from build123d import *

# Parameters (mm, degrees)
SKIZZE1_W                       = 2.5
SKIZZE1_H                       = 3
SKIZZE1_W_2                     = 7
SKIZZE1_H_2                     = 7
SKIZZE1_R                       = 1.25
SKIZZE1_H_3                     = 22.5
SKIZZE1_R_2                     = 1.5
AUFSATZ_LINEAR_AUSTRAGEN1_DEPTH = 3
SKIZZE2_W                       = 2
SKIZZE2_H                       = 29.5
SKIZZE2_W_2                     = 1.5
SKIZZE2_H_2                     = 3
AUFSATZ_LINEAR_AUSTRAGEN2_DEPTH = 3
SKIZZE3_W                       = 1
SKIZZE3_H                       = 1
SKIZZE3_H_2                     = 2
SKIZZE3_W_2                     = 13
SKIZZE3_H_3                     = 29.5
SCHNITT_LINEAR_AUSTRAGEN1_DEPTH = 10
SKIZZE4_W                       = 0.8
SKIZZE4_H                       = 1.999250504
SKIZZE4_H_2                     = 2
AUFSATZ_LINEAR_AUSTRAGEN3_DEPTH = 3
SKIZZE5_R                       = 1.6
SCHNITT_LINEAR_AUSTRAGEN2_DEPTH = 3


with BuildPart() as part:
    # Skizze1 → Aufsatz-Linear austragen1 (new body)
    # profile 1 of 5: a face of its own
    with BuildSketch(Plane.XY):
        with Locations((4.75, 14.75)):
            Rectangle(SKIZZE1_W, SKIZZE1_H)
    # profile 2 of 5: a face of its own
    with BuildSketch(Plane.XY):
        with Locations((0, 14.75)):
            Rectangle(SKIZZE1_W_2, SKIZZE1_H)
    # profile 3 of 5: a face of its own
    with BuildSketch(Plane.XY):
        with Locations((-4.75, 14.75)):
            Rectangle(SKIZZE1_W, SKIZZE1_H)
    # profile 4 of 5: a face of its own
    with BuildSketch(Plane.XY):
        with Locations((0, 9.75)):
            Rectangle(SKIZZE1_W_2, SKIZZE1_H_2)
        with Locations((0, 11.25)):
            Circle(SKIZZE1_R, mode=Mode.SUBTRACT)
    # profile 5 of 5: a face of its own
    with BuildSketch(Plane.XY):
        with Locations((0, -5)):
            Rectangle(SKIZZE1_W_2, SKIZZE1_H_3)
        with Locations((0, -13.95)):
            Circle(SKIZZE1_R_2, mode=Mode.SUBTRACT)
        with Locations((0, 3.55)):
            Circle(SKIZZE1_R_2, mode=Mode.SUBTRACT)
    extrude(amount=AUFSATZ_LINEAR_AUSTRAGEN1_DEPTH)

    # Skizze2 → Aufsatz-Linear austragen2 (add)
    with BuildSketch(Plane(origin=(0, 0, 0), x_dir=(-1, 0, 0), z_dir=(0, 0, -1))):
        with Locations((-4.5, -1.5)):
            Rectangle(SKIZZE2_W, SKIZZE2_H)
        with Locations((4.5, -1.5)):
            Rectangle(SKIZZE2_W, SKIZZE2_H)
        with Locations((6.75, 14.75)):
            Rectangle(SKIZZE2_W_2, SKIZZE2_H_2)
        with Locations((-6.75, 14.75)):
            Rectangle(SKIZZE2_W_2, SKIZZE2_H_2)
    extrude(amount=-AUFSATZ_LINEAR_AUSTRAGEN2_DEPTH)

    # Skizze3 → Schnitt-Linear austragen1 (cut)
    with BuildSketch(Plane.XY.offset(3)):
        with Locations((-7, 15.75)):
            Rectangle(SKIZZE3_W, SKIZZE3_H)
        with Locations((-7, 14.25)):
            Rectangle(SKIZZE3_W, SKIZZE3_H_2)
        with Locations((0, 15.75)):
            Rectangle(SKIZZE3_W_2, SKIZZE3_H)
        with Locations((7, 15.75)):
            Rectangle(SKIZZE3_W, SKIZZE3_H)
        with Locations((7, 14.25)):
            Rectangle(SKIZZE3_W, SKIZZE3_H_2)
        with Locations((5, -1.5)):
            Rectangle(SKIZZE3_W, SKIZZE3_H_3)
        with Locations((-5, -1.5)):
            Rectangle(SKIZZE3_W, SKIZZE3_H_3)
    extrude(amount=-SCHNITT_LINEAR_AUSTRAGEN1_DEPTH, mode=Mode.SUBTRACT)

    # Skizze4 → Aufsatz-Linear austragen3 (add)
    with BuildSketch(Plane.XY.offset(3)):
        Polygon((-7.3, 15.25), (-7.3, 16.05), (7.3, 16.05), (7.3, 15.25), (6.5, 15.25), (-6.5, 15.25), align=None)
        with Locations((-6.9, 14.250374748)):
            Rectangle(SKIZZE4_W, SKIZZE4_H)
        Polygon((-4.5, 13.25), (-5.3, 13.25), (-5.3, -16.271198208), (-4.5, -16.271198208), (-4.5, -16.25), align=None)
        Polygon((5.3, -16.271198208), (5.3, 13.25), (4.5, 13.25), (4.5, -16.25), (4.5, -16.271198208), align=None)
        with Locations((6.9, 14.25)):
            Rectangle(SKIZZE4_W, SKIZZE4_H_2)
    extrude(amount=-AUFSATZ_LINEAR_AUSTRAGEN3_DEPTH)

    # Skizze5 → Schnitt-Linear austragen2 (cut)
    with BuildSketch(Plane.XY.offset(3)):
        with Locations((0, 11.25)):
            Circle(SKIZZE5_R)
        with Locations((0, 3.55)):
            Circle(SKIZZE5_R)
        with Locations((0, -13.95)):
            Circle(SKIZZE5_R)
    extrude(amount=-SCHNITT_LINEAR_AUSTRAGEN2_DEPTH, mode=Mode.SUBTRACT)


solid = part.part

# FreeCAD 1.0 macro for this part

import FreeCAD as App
import Part
import Sketcher

V = App.Vector
Q = App.Units.Quantity


def add_polygon(sketch, points):
    """Adds a closed chain of lines whose ends are joined by coincident constraints."""
    first, n = sketch.GeometryCount, len(points)
    for a, b in zip(points, points[1:] + points[:1]):
        sketch.addGeometry(Part.LineSegment(App.Vector(*a, 0), App.Vector(*b, 0)), False)
    for i in range(n):
        sketch.addConstraint(Sketcher.Constraint("Coincident", first + i, 2, first + (i + 1) % n, 1))

doc = App.newDocument("Part")
params = doc.addObject("Spreadsheet::Sheet", "Params")
for row, (alias, value) in enumerate([
    ("sketch1_diameter", "3 mm"),
    ("sketch1_diameter2", "2.5 mm"),
    ("sketch1_width", "12 mm"),
    ("sketch1_width2", "7 mm"),
    ("sketch1_height", "3 mm"),
    ("pad1_length", "3 mm"),
    ("sketch2_width", "2 mm"),
    ("sketch2_height", "3 mm"),
    ("sketch2_width2", "1.5 mm"),
    ("sketch2_height2", "29.5 mm"),
    ("pad2_length", "3 mm"),
    ("sketch3_width", "1 mm"),
    ("sketch3_width2", "13 mm"),
    ("sketch3_height", "3 mm"),
    ("sketch3_height2", "2 mm"),
    ("sketch3_height3", "29.5 mm"),
    ("pocket1_length", "10 mm"),
    ("sketch4_width", "13 mm"),
    ("sketch4_height", "2 mm"),
    ("sketch4_width2", "0.8 mm"),
    ("sketch4_height2", "2.8 mm"),
    ("pad3_length", "3 mm"),
    ("sketch5_diameter", "3.2 mm"),
    ("pocket2_length", "3 mm"),
], start=1):
    params.set(f"A{row}", alias)
    params.set(f"B{row}", "=" + value)
    params.setAlias(f"B{row}", alias)

body = doc.addObject("PartDesign::Body", "Body")

# Sketch on XY plane
sketch1 = body.newObject("Sketcher::SketchObject", "Sketch")
sketch1.AttachmentSupport = (doc.getObject("XY_Plane"), [""])
sketch1.MapMode = "FlatFace"
add_polygon(sketch1, [(3.5, 13.25), (6, 13.25), (6, 16.25), (-6, 16.25), (-6, 13.25), (-3.5, 13.25), (-3.5, -16.25), (3.5, -16.25)])  # lines 0-7
sketch1.addGeometry(Part.Circle(V(0, 11.25, 0), V(0, 0, 1), 1.25), False)  # 8
sketch1.addGeometry(Part.Circle(V(0, 3.55, 0), V(0, 0, 1), 1.5), False)  # 9
sketch1.addGeometry(Part.Circle(V(0, -13.95, 0), V(0, 0, 1), 1.5), False)  # 10
sketch1.addConstraint([
    Sketcher.Constraint("Horizontal", 0),
    Sketcher.Constraint("Vertical", 1),
    Sketcher.Constraint("Horizontal", 2),
    Sketcher.Constraint("Vertical", 3),
    Sketcher.Constraint("Horizontal", 4),
    Sketcher.Constraint("Vertical", 5),
    Sketcher.Constraint("Horizontal", 6),
    Sketcher.Constraint("Vertical", 7),
    Sketcher.Constraint("Equal", 9, 10),
    Sketcher.Constraint("Symmetric", 0, 2, 3, 2, -2),
    Sketcher.Constraint("PointOnObject", 8, 3, -2),
    Sketcher.Constraint("PointOnObject", 9, 3, -2),
    Sketcher.Constraint("PointOnObject", 10, 3, -2),
    Sketcher.Constraint("Equal", 0, 4),
    Sketcher.Constraint("Diameter", 9, Q("3 mm")),
    Sketcher.Constraint("Diameter", 8, Q("2.5 mm")),
    Sketcher.Constraint("DistanceX", 2, 2, 2, 1, Q("12 mm")),
    Sketcher.Constraint("DistanceX", 6, 1, 6, 2, Q("7 mm")),
    Sketcher.Constraint("DistanceY", 1, 1, 1, 2, Q("3 mm")),
    Sketcher.Constraint("DistanceY", 5, 2, 5, 1, Q("29.5 mm")),
    Sketcher.Constraint("DistanceY", 8, 3, 0, 2, Q("2 mm")),
    Sketcher.Constraint("DistanceY", 9, 3, 8, 3, Q("7.7 mm")),
    Sketcher.Constraint("DistanceY", 10, 3, 9, 3, Q("17.5 mm")),
    Sketcher.Constraint("DistanceY", -1, 1, 8, 3, Q("11.25 mm")),
])
sketch1.setExpression("Constraints[22]", "Params.sketch1_diameter")
sketch1.setExpression("Constraints[23]", "Params.sketch1_diameter2")
sketch1.setExpression("Constraints[24]", "Params.sketch1_width")
sketch1.setExpression("Constraints[25]", "Params.sketch1_width2")
sketch1.setExpression("Constraints[26]", "Params.sketch1_height")
pad1 = body.newObject("PartDesign::Pad", "Pad")
pad1.Profile = sketch1
pad1.setExpression("Length", "Params.pad1_length")

# Sketch on XY plane
sketch2 = body.newObject("Sketcher::SketchObject", "Sketch001")
sketch2.AttachmentSupport = (doc.getObject("XY_Plane"), [""])
sketch2.MapMode = "FlatFace"
add_polygon(sketch2, [(5.5, 13.25), (5.5, -16.25), (3.5, -16.25), (3.5, 13.25)])  # lines 0-3
add_polygon(sketch2, [(-3.5, 13.25), (-3.5, -16.25), (-5.5, -16.25), (-5.5, 13.25)])  # lines 4-7
add_polygon(sketch2, [(-6, 16.25), (-6, 13.25), (-7.5, 13.25), (-7.5, 16.25)])  # lines 8-11
add_polygon(sketch2, [(7.5, 16.25), (7.5, 13.25), (6, 13.25), (6, 16.25)])  # lines 12-15
sketch2.addConstraint([
    Sketcher.Constraint("Vertical", 0),
    Sketcher.Constraint("Horizontal", 1),
    Sketcher.Constraint("Vertical", 2),
    Sketcher.Constraint("Horizontal", 3),
    Sketcher.Constraint("Vertical", 4),
    Sketcher.Constraint("Horizontal", 5),
    Sketcher.Constraint("Vertical", 6),
    Sketcher.Constraint("Horizontal", 7),
    Sketcher.Constraint("Vertical", 8),
    Sketcher.Constraint("Horizontal", 9),
    Sketcher.Constraint("Vertical", 10),
    Sketcher.Constraint("Horizontal", 11),
    Sketcher.Constraint("Vertical", 12),
    Sketcher.Constraint("Horizontal", 13),
    Sketcher.Constraint("Vertical", 14),
    Sketcher.Constraint("Horizontal", 15),
    Sketcher.Constraint("Symmetric", 1, 2, 4, 2, -2),
    Sketcher.Constraint("Symmetric", 3, 2, 6, 2, -2),
    Sketcher.Constraint("Symmetric", 9, 2, 12, 2, -2),
    Sketcher.Constraint("Symmetric", 11, 2, 14, 2, -2),
    Sketcher.Constraint("Horizontal", 7, 2, 8, 2),
    Sketcher.Constraint("DistanceX", 1, 2, 1, 1, Q("2 mm")),
    Sketcher.Constraint("DistanceY", 8, 2, 8, 1, Q("3 mm")),
    Sketcher.Constraint("DistanceX", 9, 2, 9, 1, Q("1.5 mm")),
    Sketcher.Constraint("DistanceY", 0, 2, 0, 1, Q("29.5 mm")),
    Sketcher.Constraint("DistanceX", 8, 2, -1, 1, Q("6 mm")),
    Sketcher.Constraint("DistanceX", 4, 2, 1, 2, Q("7 mm")),
    Sketcher.Constraint("DistanceY", 0, 2, -1, 1, Q("16.25 mm")),
])
sketch2.setExpression("Constraints[37]", "Params.sketch2_width")
sketch2.setExpression("Constraints[38]", "Params.sketch2_height")
sketch2.setExpression("Constraints[39]", "Params.sketch2_width2")
sketch2.setExpression("Constraints[40]", "Params.sketch2_height2")
pad2 = body.newObject("PartDesign::Pad", "Pad001")
pad2.Profile = sketch2
pad2.setExpression("Length", "Params.pad2_length")

# Sketch on XY plane
sketch3 = body.newObject("Sketcher::SketchObject", "Sketch002")
sketch3.AttachmentSupport = (doc.getObject("XY_Plane"), [""])
sketch3.MapMode = "FlatFace"
sketch3.AttachmentOffset = App.Placement(V(0, 0, 3), App.Rotation())
add_polygon(sketch3, [(-7.5, 16.25), (-7.5, 13.25), (-6.5, 13.25), (-6.5, 15.25), (6.5, 15.25), (6.5, 13.25), (7.5, 13.25), (7.5, 16.25)])  # lines 0-7
add_polygon(sketch3, [(4.5, 13.25), (4.5, -16.25), (5.5, -16.25), (5.5, 13.25)])  # lines 8-11
add_polygon(sketch3, [(-5.5, 13.25), (-5.5, -16.25), (-4.5, -16.25), (-4.5, 13.25)])  # lines 12-15
sketch3.addConstraint([
    Sketcher.Constraint("Vertical", 0),
    Sketcher.Constraint("Horizontal", 1),
    Sketcher.Constraint("Vertical", 2),
    Sketcher.Constraint("Horizontal", 3),
    Sketcher.Constraint("Vertical", 4),
    Sketcher.Constraint("Horizontal", 5),
    Sketcher.Constraint("Vertical", 6),
    Sketcher.Constraint("Horizontal", 7),
    Sketcher.Constraint("Vertical", 8),
    Sketcher.Constraint("Horizontal", 9),
    Sketcher.Constraint("Vertical", 10),
    Sketcher.Constraint("Horizontal", 11),
    Sketcher.Constraint("Vertical", 12),
    Sketcher.Constraint("Horizontal", 13),
    Sketcher.Constraint("Vertical", 14),
    Sketcher.Constraint("Horizontal", 15),
    Sketcher.Constraint("Symmetric", 1, 2, 4, 2, -2),
    Sketcher.Constraint("Symmetric", 9, 2, 12, 2, -2),
    Sketcher.Constraint("Symmetric", 11, 2, 14, 2, -2),
    Sketcher.Constraint("Horizontal", 5, 2, 10, 2),
    Sketcher.Constraint("Equal", 1, 5),
    Sketcher.Constraint("Equal", 5, 9),
    Sketcher.Constraint("DistanceX", 1, 1, 1, 2, Q("1 mm")),
    Sketcher.Constraint("DistanceX", 3, 1, 3, 2, Q("13 mm")),
    Sketcher.Constraint("DistanceY", 0, 2, 0, 1, Q("3 mm")),
    Sketcher.Constraint("DistanceY", 2, 1, 2, 2, Q("2 mm")),
    Sketcher.Constraint("DistanceY", 8, 2, 8, 1, Q("29.5 mm")),
    Sketcher.Constraint("DistanceX", 8, 2, 4, 2, Q("2 mm")),
    Sketcher.Constraint("DistanceY", -1, 1, 0, 2, Q("13.25 mm")),
])
sketch3.setExpression("Constraints[38]", "Params.sketch3_width")
sketch3.setExpression("Constraints[39]", "Params.sketch3_width2")
sketch3.setExpression("Constraints[40]", "Params.sketch3_height")
sketch3.setExpression("Constraints[41]", "Params.sketch3_height2")
sketch3.setExpression("Constraints[42]", "Params.sketch3_height3")
pocket1 = body.newObject("PartDesign::Pocket", "Pocket")
pocket1.Profile = sketch3
pocket1.setExpression("Length", "Params.pocket1_length")

# Sketch on XY plane
sketch4 = body.newObject("Sketcher::SketchObject", "Sketch003")
sketch4.AttachmentSupport = (doc.getObject("XY_Plane"), [""])
sketch4.MapMode = "FlatFace"
sketch4.AttachmentOffset = App.Placement(V(0, 0, 3), App.Rotation())
add_polygon(sketch4, [(-7.3, 16.05), (-7.3, 13.250749), (-6.5, 13.250749), (-6.5, 15.25), (6.5, 15.25), (6.5, 13.25), (7.3, 13.25), (7.3, 16.05)])  # lines 0-7
add_polygon(sketch4, [(-4.5, 13.25), (-5.3, 13.25), (-5.3, -16.271198), (-4.5, -16.271198)])  # lines 8-11
add_polygon(sketch4, [(5.3, -16.271198), (5.3, 13.25), (4.5, 13.25), (4.5, -16.271198)])  # lines 12-15
sketch4.addConstraint([
    Sketcher.Constraint("Vertical", 0),
    Sketcher.Constraint("Horizontal", 1),
    Sketcher.Constraint("Vertical", 2),
    Sketcher.Constraint("Horizontal", 3),
    Sketcher.Constraint("Vertical", 4),
    Sketcher.Constraint("Horizontal", 5),
    Sketcher.Constraint("Vertical", 6),
    Sketcher.Constraint("Horizontal", 7),
    Sketcher.Constraint("Horizontal", 8),
    Sketcher.Constraint("Vertical", 9),
    Sketcher.Constraint("Horizontal", 10),
    Sketcher.Constraint("Vertical", 11),
    Sketcher.Constraint("Vertical", 12),
    Sketcher.Constraint("Horizontal", 13),
    Sketcher.Constraint("Vertical", 14),
    Sketcher.Constraint("Horizontal", 15),
    Sketcher.Constraint("Symmetric", 8, 2, 12, 2, -2),
    Sketcher.Constraint("Symmetric", 10, 2, 14, 2, -2),
    Sketcher.Constraint("Horizontal", 5, 2, 8, 2),
    Sketcher.Constraint("Equal", 1, 5),
    Sketcher.Constraint("Equal", 5, 8),
    Sketcher.Constraint("DistanceX", 3, 1, 3, 2, Q("13 mm")),
    Sketcher.Constraint("DistanceY", 4, 2, 4, 1, Q("2 mm")),
    Sketcher.Constraint("DistanceX", 1, 1, 1, 2, Q("0.8 mm")),
    Sketcher.Constraint("DistanceY", 6, 1, 6, 2, Q("2.8 mm")),
    Sketcher.Constraint("DistanceX", 0, 2, 8, 2, Q("2 mm")),
    Sketcher.Constraint("DistanceX", 12, 2, 5, 2, Q("2 mm")),
    Sketcher.Constraint("DistanceY", -1, 1, 2, 2, Q("15.25 mm")),
    Sketcher.Constraint("DistanceY", 9, 2, 9, 1, Q("29.521198 mm")),
    Sketcher.Constraint("DistanceY", 0, 2, 0, 1, Q("2.799251 mm")),
])
sketch4.setExpression("Constraints[37]", "Params.sketch4_width")
sketch4.setExpression("Constraints[38]", "Params.sketch4_height")
sketch4.setExpression("Constraints[39]", "Params.sketch4_width2")
sketch4.setExpression("Constraints[40]", "Params.sketch4_height2")
pad3 = body.newObject("PartDesign::Pad", "Pad002")
pad3.Profile = sketch4
pad3.setExpression("Length", "Params.pad3_length")
pad3.Reversed = True

# Sketch on XY plane
sketch5 = body.newObject("Sketcher::SketchObject", "Sketch004")
sketch5.AttachmentSupport = (doc.getObject("XY_Plane"), [""])
sketch5.MapMode = "FlatFace"
sketch5.AttachmentOffset = App.Placement(V(0, 0, 3), App.Rotation())
sketch5.addGeometry([
    Part.Circle(V(0, 11.25, 0), V(0, 0, 1), 1.6),
    Part.Circle(V(0, 3.55, 0), V(0, 0, 1), 1.6),
    Part.Circle(V(0, -13.95, 0), V(0, 0, 1), 1.6),
], False)
sketch5.addConstraint([
    Sketcher.Constraint("Equal", 0, 1),
    Sketcher.Constraint("Equal", 1, 2),
    Sketcher.Constraint("PointOnObject", 0, 3, -2),
    Sketcher.Constraint("PointOnObject", 1, 3, -2),
    Sketcher.Constraint("PointOnObject", 2, 3, -2),
    Sketcher.Constraint("Diameter", 0, Q("3.2 mm")),
    Sketcher.Constraint("DistanceY", 1, 3, 0, 3, Q("7.7 mm")),
    Sketcher.Constraint("DistanceY", 2, 3, 1, 3, Q("17.5 mm")),
    Sketcher.Constraint("DistanceY", -1, 1, 0, 3, Q("11.25 mm")),
])
sketch5.setExpression("Constraints[5]", "Params.sketch5_diameter")
pocket2 = body.newObject("PartDesign::Pocket", "Pocket001")
pocket2.Profile = sketch5
pocket2.setExpression("Length", "Params.pocket2_length")

doc.recompute()
